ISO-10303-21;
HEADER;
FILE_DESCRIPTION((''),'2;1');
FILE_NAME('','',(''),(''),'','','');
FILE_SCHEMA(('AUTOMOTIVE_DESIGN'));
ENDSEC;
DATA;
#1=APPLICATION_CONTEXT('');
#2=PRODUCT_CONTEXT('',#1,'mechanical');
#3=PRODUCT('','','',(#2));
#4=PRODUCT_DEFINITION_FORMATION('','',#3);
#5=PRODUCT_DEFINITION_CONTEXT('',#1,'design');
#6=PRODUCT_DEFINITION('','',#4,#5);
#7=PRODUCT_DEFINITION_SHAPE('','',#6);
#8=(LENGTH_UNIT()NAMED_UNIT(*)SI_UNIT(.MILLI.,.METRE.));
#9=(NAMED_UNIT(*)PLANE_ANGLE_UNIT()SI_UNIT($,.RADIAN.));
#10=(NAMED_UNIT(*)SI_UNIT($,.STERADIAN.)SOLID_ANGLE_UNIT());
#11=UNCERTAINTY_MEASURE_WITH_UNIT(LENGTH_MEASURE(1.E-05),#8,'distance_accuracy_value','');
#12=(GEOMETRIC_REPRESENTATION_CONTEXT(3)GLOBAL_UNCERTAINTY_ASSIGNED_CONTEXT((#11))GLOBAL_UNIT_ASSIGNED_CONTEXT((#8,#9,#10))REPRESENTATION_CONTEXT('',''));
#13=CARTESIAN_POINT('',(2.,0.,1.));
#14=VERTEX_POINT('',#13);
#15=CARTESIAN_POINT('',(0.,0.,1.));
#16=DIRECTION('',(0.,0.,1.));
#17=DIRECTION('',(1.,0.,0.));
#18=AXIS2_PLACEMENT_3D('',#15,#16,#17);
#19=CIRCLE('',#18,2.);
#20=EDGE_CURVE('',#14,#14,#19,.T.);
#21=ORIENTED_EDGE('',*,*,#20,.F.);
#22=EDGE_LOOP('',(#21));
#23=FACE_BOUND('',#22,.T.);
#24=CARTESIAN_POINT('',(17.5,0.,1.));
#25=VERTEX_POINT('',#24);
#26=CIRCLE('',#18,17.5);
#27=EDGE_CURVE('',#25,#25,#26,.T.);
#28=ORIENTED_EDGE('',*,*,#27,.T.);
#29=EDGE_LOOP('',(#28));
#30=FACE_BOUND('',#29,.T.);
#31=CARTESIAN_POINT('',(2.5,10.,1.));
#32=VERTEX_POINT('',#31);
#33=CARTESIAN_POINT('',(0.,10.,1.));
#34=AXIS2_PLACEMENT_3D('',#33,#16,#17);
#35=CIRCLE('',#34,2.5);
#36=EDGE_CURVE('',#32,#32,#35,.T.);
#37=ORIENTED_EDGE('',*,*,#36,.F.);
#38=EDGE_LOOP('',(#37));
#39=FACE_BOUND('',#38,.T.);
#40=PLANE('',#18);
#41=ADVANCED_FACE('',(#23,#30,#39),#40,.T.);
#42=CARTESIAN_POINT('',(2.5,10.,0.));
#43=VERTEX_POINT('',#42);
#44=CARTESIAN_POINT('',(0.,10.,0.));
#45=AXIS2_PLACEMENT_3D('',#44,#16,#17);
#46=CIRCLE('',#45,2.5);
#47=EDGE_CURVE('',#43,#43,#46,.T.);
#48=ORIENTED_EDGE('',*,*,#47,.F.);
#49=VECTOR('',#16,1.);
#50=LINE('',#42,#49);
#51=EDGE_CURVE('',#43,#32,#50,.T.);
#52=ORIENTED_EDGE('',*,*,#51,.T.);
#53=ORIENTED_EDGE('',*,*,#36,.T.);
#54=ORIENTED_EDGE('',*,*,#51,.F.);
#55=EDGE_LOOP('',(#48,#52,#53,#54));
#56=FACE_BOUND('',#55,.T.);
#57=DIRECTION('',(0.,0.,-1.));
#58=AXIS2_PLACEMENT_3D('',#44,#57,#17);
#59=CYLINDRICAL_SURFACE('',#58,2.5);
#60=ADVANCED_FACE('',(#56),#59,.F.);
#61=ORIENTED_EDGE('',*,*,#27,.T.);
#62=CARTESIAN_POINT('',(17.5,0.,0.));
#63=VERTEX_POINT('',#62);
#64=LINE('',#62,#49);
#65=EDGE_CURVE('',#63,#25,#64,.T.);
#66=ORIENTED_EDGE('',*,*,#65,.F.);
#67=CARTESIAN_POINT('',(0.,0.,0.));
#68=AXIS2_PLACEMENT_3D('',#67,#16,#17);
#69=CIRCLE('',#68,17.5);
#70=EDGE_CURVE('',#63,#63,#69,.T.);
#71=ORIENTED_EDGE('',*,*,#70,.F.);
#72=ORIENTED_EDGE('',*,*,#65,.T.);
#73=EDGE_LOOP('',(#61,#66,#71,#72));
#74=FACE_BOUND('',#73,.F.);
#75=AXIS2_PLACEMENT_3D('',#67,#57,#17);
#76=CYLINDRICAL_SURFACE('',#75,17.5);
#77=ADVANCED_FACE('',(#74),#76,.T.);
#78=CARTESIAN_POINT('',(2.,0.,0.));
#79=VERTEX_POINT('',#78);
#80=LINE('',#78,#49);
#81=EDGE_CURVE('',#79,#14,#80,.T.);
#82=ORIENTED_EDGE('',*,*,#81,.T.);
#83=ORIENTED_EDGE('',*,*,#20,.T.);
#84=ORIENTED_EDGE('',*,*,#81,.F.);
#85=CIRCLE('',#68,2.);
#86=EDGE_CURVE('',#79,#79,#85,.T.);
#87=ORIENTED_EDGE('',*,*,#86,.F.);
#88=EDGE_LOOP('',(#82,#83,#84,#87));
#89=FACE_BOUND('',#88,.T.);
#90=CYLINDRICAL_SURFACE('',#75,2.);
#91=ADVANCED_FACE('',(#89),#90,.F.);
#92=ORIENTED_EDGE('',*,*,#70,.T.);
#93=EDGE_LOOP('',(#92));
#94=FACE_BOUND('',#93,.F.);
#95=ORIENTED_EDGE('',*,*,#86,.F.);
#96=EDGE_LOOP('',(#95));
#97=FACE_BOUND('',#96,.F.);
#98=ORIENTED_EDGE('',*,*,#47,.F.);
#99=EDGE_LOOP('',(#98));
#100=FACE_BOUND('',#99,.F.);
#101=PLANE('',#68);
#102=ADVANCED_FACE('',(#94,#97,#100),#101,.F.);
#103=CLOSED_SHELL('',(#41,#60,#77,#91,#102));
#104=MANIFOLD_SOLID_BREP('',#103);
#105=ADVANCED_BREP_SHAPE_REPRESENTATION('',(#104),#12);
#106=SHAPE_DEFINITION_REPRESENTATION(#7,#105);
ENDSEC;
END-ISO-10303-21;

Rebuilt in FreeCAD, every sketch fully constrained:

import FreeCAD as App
import Part
import Sketcher
Q = App.Units.Quantity

doc = App.newDocument("Part")
params = doc.addObject("Spreadsheet::Sheet", "Params")
for row, (alias, value) in enumerate([
    ("sketch1_diameter", "35 mm"),
    ("sketch1_diameter2", "4 mm"),
    ("sketch1_diameter3", "5 mm"),
    ("pad1_length", "1 mm"),
], start=1):
    params.set(f"A{row}", alias)
    params.set(f"B{row}", "=" + value)
    params.setAlias(f"B{row}", alias)

body = doc.addObject("PartDesign::Body", "Body")

sketch1 = body.newObject("Sketcher::SketchObject", "Sketch")
sketch1.AttachmentSupport = (doc.getObject("XY_Plane"), [""])
sketch1.MapMode = "FlatFace"
sketch1.addGeometry([
    Part.Circle(App.Vector(0, 0, 0), App.Vector(0, 0, 1), 17.5),
    Part.Circle(App.Vector(0, 0, 0), App.Vector(0, 0, 1), 2),
    Part.Circle(App.Vector(0, 10, 0), App.Vector(0, 0, 1), 2.5),
], False)
sketch1.addConstraint([
    Sketcher.Constraint("Coincident", 0, 3, -1, 1),
    Sketcher.Constraint("Coincident", 1, 3, -1, 1),
    Sketcher.Constraint("PointOnObject", 2, 3, -2),
    Sketcher.Constraint("Diameter", 0, Q("35 mm")),
    Sketcher.Constraint("Diameter", 1, Q("4 mm")),
    Sketcher.Constraint("Diameter", 2, Q("5 mm")),
    Sketcher.Constraint("DistanceY", -1, 1, 2, 3, Q("10 mm")),
])
sketch1.setExpression("Constraints[3]", "Params.sketch1_diameter")
sketch1.setExpression("Constraints[4]", "Params.sketch1_diameter2")
sketch1.setExpression("Constraints[5]", "Params.sketch1_diameter3")
pad1 = body.newObject("PartDesign::Pad", "Pad")
pad1.Profile = sketch1
pad1.setExpression("Length", "Params.pad1_length")

doc.recompute()
